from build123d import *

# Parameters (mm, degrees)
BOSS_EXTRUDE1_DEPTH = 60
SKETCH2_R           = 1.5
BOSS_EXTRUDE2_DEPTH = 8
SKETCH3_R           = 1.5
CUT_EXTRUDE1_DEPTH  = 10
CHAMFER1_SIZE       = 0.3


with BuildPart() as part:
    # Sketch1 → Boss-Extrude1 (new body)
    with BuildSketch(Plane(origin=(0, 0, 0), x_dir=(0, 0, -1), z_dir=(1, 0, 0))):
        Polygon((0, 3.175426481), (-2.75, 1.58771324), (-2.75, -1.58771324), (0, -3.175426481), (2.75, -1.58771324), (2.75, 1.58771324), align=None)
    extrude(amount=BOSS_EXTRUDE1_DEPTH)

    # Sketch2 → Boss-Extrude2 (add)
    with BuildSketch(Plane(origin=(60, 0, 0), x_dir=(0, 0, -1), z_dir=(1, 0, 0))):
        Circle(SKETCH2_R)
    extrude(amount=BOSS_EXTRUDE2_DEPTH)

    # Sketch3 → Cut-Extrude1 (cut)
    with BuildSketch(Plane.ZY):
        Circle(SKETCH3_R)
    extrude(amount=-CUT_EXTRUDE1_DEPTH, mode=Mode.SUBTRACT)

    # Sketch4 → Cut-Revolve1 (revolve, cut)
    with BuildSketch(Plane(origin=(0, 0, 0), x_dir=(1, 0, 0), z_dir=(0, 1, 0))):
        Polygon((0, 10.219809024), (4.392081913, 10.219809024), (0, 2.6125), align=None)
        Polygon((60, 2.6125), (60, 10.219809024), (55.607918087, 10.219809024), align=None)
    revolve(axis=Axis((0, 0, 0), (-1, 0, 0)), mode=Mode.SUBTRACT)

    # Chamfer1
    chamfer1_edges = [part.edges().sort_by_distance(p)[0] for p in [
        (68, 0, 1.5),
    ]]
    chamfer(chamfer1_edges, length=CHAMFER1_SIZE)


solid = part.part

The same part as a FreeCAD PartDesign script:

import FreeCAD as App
import Part
import Sketcher

V = App.Vector
Q = App.Units.Quantity


def edges_at(feature, points):
    """Names of the edges that pass closest to the given points."""
    edges = feature.Shape.Edges
    near = lambda p: min(range(len(edges)), key=lambda i: edges[i].distToShape(Part.Vertex(*p))[0])
    return sorted({f"Edge{near(p) + 1}" for p in points})


def add_polygon(sketch, points):
    """Adds a closed chain of lines whose ends are joined by coincident constraints."""
    first, n = sketch.GeometryCount, len(points)
    for a, b in zip(points, points[1:] + points[:1]):
        sketch.addGeometry(Part.LineSegment(App.Vector(*a, 0), App.Vector(*b, 0)), False)
    for i in range(n):
        sketch.addConstraint(Sketcher.Constraint("Coincident", first + i, 2, first + (i + 1) % n, 1))

doc = App.newDocument("Part")
body = doc.addObject("PartDesign::Body", "Body")

# Sketch on YZ plane
sketch1 = doc.addObject("Sketcher::SketchObject", "Sketch")
body.addObject(sketch1)
sketch1.AttachmentSupport = (doc.YZ_Plane, [""])
sketch1.MapMode = "FlatFace"
add_polygon(sketch1, [(3.2, 0), (1.6, 2.8), (-1.6, 2.8), (-3.2, 0), (-1.6, -2.8), (1.6, -2.8)])  # lines 0-5
sketch1.addConstraint([
    Sketcher.Constraint("Horizontal", 1),
    Sketcher.Constraint("Horizontal", 4),
    Sketcher.Constraint("Symmetric", 0, 2, 3, 2, -1, 1),
    Sketcher.Constraint("Symmetric", 2, 2, 5, 2, -1, 1),
    Sketcher.Constraint("PointOnObject", 2, 2, -1),
    Sketcher.Constraint("Parallel", 2, 5),
    Sketcher.Constraint("Vertical", 1, 2, 3, 2),
    Sketcher.Constraint("Angle", 0, Q("120 deg")),
    Sketcher.Constraint("DistanceY", 3, 2, 1, 2, 5.5),
    Sketcher.Constraint("DistanceX", 1, 2, 1, 1, 3.175426),
])
pad1 = doc.addObject("PartDesign::Pad", "Pad")
body.addObject(pad1)
pad1.Profile = sketch1
pad1.Length = 60

# Sketch on YZ plane
sketch2 = doc.addObject("Sketcher::SketchObject", "Sketch001")
body.addObject(sketch2)
sketch2.AttachmentSupport = (doc.YZ_Plane, [""])
sketch2.MapMode = "FlatFace"
sketch2.AttachmentOffset = App.Placement(V(0, 0, 60), App.Rotation())
sketch2.addGeometry(Part.Circle(V(0, 0, 0), V(0, 0, 1), 1.5), False)
sketch2.addConstraint([
    Sketcher.Constraint("Coincident", 0, 3, -1, 1),
    Sketcher.Constraint("Diameter", 0, 3.0),
])
pad2 = doc.addObject("PartDesign::Pad", "Pad001")
body.addObject(pad2)
pad2.Profile = sketch2
pad2.Length = 8

# Sketch on YZ plane
sketch3 = doc.addObject("Sketcher::SketchObject", "Sketch002")
body.addObject(sketch3)
sketch3.AttachmentSupport = (doc.YZ_Plane, [""])
sketch3.MapMode = "FlatFace"
sketch3.addGeometry(Part.Circle(V(0, 0, 0), V(0, 0, 1), 1.5), False)
sketch3.addConstraint([
    Sketcher.Constraint("Coincident", 0, 3, -1, 1),
    Sketcher.Constraint("Diameter", 0, 3.0),
])
pocket1 = doc.addObject("PartDesign::Pocket", "Pocket")
body.addObject(pocket1)
pocket1.Profile = sketch3
pocket1.Length = 10
pocket1.Reversed = True

# Sketch on XZ plane
sketch4 = doc.addObject("Sketcher::SketchObject", "Sketch003")
body.addObject(sketch4)
sketch4.AttachmentSupport = (doc.XZ_Plane, [""])
sketch4.MapMode = "FlatFace"
add_polygon(sketch4, [(4.4, -10.2), (0, -10.2), (0, -2.6)])  # lines 0-2
add_polygon(sketch4, [(60, -2.6), (60, -10.2), (55.6, -10.2)])  # lines 3-5
sketch4.addConstraint([
    Sketcher.Constraint("Horizontal", 0),
    Sketcher.Constraint("Vertical", 1),
    Sketcher.Constraint("Vertical", 3),
    Sketcher.Constraint("Horizontal", 4),
    Sketcher.Constraint("PointOnObject", 0, 2, -2),
    Sketcher.Constraint("Horizontal", 2, 2, 3, 2),
    Sketcher.Constraint("Horizontal", 1, 2, 5, 2),
    Sketcher.Constraint("Equal", 0, 4),
    Sketcher.Constraint("Angle", 2, Q("-60 deg")),
    Sketcher.Constraint("DistanceX", -1, 1, 3, 2, 60.0),
    Sketcher.Constraint("DistanceX", 0, 2, 0, 1, 4.392082),
    Sketcher.Constraint("DistanceY", 1, 2, -1, 1, 2.6125),
])
groove = doc.addObject("PartDesign::Groove", "Groove")
body.addObject(groove)
groove.Profile = sketch4
groove.ReferenceAxis = (sketch4, ["H_Axis"])
groove.Angle = 360
doc.recompute()

chamfer = doc.addObject("PartDesign::Chamfer", "Chamfer")
body.addObject(chamfer)
chamfer.Base = (groove, edges_at(groove, [(68, 0, 1.5)]))
chamfer.Size = 0.3

doc.recompute()
